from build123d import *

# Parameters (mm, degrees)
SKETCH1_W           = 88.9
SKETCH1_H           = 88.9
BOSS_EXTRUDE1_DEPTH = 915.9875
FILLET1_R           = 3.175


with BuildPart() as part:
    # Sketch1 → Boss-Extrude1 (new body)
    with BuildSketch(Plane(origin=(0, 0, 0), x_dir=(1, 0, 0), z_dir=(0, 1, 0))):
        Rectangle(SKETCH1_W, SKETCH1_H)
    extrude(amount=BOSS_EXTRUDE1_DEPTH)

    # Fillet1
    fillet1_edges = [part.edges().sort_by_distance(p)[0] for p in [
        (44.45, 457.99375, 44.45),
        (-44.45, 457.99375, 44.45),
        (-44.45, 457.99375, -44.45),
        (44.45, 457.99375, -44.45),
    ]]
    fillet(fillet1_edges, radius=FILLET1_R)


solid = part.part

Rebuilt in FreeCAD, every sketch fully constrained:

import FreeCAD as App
import Part
import Sketcher
Q = App.Units.Quantity


def edges_at(feature, points):
    """Names of the edges that pass closest to the given points."""
    edges = feature.Shape.Edges
    near = lambda p: min(range(len(edges)), key=lambda i: edges[i].distToShape(Part.Vertex(*p))[0])
    return sorted({f"Edge{near(p) + 1}" for p in points})

doc = App.newDocument("Part")
body = doc.addObject("PartDesign::Body", "Body")

sketch1 = doc.addObject("Sketcher::SketchObject", "Sketch")
body.addObject(sketch1)
sketch1.AttachmentSupport = (doc.XZ_Plane, [""])
sketch1.MapMode = "FlatFace"
sketch1.addGeometry([
    Part.LineSegment(App.Vector(-44, -44, 0), App.Vector(-44, 44, 0)),
    Part.LineSegment(App.Vector(-44, 44, 0), App.Vector(44, 44, 0)),
    Part.LineSegment(App.Vector(44, 44, 0), App.Vector(44, -44, 0)),
    Part.LineSegment(App.Vector(44, -44, 0), App.Vector(-44, -44, 0)),
], False)
sketch1.addConstraint([
    Sketcher.Constraint("Coincident", 0, 2, 1, 1),
    Sketcher.Constraint("Coincident", 1, 2, 2, 1),
    Sketcher.Constraint("Coincident", 2, 2, 3, 1),
    Sketcher.Constraint("Coincident", 3, 2, 0, 1),
    Sketcher.Constraint("Vertical", 0),
    Sketcher.Constraint("Horizontal", 1),
    Sketcher.Constraint("Vertical", 2),
    Sketcher.Constraint("Horizontal", 3),
    Sketcher.Constraint("Symmetric", 0, 2, 2, 2, -1, 1),
    Sketcher.Constraint("Equal", 3, 0),
    Sketcher.Constraint("DistanceX", 1, 1, 1, 2, Q("3.5 in")),
])
pad1 = doc.addObject("PartDesign::Pad", "Pad")
body.addObject(pad1)
pad1.Profile = sketch1
pad1.Length = Q("36.0625 in")
pad1.Reversed = True
doc.recompute()

fillet = doc.addObject("PartDesign::Fillet", "Fillet")
body.addObject(fillet)
fillet.Base = (pad1, edges_at(pad1, [
    (44.45, 457.994, 44.45),
    (-44.45, 457.994, 44.45),
    (-44.45, 457.994, -44.45),
    (44.45, 457.994, -44.45),
]))
fillet.Radius = Q("0.125 in")

doc.recompute()
